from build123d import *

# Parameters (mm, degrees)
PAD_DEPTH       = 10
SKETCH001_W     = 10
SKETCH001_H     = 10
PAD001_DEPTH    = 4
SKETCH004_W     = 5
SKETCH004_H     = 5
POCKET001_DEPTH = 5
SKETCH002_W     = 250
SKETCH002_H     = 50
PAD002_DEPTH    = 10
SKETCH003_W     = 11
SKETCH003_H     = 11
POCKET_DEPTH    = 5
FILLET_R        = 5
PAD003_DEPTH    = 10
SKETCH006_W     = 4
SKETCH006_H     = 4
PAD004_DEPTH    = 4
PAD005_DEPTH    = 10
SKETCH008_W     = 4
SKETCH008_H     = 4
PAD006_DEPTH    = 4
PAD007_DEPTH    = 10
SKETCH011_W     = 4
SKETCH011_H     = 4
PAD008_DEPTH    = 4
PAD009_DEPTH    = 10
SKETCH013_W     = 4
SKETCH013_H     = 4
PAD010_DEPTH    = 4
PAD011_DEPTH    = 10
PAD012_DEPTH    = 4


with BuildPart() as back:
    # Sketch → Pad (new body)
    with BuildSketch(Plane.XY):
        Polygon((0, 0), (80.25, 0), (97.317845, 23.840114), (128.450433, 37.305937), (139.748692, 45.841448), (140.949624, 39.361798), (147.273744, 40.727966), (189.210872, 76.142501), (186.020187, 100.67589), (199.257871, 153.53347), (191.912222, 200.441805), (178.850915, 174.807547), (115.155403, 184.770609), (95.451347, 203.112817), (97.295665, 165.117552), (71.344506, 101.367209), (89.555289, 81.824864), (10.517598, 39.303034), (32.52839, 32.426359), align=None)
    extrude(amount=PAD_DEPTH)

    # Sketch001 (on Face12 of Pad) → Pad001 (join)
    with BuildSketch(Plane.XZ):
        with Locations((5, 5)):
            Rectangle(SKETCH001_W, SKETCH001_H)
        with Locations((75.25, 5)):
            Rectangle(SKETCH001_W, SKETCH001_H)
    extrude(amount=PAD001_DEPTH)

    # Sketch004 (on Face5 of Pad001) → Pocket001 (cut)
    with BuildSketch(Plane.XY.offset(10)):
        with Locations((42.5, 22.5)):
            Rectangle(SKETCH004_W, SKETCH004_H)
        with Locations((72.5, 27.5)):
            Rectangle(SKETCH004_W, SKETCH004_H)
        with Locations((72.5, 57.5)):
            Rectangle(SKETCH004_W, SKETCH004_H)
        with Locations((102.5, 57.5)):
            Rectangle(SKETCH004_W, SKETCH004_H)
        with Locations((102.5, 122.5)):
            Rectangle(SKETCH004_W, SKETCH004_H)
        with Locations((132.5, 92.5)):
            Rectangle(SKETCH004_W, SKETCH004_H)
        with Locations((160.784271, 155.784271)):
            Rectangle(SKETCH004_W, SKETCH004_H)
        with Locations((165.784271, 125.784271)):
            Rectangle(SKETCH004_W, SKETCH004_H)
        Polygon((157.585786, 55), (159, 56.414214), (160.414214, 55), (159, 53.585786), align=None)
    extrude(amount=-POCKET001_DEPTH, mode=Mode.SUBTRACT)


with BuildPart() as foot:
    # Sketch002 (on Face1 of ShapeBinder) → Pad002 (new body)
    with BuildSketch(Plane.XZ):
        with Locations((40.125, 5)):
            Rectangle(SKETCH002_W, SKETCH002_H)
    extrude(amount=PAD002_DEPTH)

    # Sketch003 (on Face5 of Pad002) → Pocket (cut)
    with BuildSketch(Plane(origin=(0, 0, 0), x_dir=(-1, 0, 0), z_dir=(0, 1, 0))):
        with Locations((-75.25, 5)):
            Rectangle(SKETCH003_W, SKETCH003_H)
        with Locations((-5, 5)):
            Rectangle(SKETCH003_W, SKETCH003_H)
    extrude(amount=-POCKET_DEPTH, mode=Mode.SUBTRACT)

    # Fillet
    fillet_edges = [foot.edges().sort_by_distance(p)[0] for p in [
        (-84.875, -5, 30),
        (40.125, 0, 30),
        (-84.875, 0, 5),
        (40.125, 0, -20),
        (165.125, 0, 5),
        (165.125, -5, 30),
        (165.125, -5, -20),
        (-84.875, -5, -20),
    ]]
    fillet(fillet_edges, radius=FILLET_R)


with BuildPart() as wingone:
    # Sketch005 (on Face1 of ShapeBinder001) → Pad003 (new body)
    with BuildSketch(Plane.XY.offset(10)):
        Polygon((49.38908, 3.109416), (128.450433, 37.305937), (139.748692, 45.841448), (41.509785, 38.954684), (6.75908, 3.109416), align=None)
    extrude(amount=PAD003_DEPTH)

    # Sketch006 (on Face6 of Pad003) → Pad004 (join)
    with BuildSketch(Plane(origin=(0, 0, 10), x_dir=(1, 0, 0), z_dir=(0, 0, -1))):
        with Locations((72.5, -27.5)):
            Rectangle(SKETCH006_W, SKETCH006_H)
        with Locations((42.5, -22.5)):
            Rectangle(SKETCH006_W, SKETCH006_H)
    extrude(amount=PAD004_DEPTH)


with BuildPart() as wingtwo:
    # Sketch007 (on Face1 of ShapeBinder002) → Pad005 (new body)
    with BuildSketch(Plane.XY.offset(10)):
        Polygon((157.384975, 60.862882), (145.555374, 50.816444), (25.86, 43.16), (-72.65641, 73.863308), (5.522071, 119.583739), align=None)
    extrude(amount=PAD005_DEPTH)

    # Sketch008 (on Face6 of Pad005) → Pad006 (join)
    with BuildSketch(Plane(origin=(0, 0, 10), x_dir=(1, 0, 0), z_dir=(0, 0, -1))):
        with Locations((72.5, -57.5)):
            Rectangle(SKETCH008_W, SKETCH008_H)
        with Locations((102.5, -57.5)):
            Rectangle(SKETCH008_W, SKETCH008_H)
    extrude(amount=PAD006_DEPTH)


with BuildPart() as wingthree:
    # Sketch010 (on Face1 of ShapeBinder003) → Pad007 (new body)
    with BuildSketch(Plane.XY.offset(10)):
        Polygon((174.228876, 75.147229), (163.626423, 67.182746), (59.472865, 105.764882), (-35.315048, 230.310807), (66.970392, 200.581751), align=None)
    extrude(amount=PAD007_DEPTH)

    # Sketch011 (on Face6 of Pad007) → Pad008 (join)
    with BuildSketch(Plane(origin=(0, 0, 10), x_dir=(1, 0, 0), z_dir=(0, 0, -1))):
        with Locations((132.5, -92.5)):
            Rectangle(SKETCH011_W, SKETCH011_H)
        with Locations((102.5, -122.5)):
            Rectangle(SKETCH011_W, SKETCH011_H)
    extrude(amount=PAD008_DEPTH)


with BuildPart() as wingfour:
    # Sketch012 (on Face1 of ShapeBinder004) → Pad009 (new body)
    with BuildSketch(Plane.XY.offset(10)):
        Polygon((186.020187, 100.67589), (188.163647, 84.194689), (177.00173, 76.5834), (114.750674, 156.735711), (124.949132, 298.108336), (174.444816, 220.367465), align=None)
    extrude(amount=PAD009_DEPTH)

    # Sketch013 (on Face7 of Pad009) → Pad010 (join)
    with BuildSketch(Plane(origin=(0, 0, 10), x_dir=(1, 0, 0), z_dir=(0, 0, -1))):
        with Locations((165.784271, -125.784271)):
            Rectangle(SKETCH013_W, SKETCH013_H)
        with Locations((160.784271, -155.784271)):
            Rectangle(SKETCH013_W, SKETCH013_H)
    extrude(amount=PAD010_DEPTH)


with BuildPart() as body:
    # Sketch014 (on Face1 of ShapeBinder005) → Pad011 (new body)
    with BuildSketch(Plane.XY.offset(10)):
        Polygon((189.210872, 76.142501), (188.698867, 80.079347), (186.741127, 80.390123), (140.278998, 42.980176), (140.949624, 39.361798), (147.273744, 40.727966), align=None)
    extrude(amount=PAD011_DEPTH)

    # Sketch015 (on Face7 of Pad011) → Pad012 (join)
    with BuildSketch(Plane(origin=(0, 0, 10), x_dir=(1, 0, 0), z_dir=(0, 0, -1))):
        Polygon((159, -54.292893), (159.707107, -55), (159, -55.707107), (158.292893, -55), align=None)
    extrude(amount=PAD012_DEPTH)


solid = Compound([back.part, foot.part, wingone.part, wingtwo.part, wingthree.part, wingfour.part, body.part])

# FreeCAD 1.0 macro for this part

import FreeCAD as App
import Part
import Sketcher
from FreeCAD import Vector
Q = App.Units.Quantity


def edges_at(feature, points):
    """Names of the edges that pass closest to the given points."""
    edges = feature.Shape.Edges
    near = lambda p: min(range(len(edges)), key=lambda i: edges[i].distToShape(Part.Vertex(*p))[0])
    return sorted({f"Edge{near(p) + 1}" for p in points})


def add_polygon(sketch, points):
    """Adds a closed chain of lines whose ends are joined by coincident constraints."""
    first, n = sketch.GeometryCount, len(points)
    for a, b in zip(points, points[1:] + points[:1]):
        sketch.addGeometry(Part.LineSegment(App.Vector(*a, 0), App.Vector(*b, 0)), False)
    for i in range(n):
        sketch.addConstraint(Sketcher.Constraint("Coincident", first + i, 2, first + (i + 1) % n, 1))

doc = App.newDocument("Part")
params = doc.addObject("Spreadsheet::Sheet", "Params")
for row, (alias, value) in enumerate([
    ("sketch1_width", "80.25 mm"),
    ("sketch1_length", "29.319999 mm"),
    ("sketch1_length2", "33.92 mm"),
    ("sketch1_length3", "14.16 mm"),
    ("sketch1_length4", "6.59 mm"),
    ("pad1_length", "10 mm"),
    ("sketch2_width", "10 mm"),
    ("pad2_length", "4 mm"),
    ("sketch3_width", "5 mm"),
    ("sketch3_length", "2.000001 mm"),
    ("pocket1_length", "5 mm"),
    ("sketch4_width", "250 mm"),
    ("sketch4_height", "50 mm"),
    ("pad3_length", "10 mm"),
    ("sketch5_width", "11 mm"),
    ("pocket2_length", "5 mm"),
    ("fillet_radius", "5 mm"),
    ("sketch6_width", "42.63 mm"),
    ("sketch6_length", "86.14 mm"),
    ("sketch6_length2", "14.16 mm"),
    ("sketch6_length3", "98.48 mm"),
    ("pad4_length", "10 mm"),
    ("sketch7_width", "4 mm"),
    ("pad5_length", "4 mm"),
    ("sketch8_length", "15.519999 mm"),
    ("sketch8_length2", "103.19 mm"),
    ("sketch8_length3", "119.94 mm"),
    ("pad6_length", "10 mm"),
    ("sketch9_width", "4 mm"),
    ("pad7_length", "4 mm"),
    ("sketch10_length", "165.04 mm"),
    ("sketch10_length2", "111.07 mm"),
    ("pad8_length", "10 mm"),
    ("sketch11_width", "4 mm"),
    ("pad9_length", "4 mm"),
    ("sketch12_length", "16.62 mm"),
    ("sketch12_length2", "120.249999 mm"),
    ("sketch12_length3", "92.160001 mm"),
    ("sketch12_length4", "141.74 mm"),
    ("sketch12_length5", "13.51 mm"),
    ("pad10_length", "10 mm"),
    ("sketch13_width", "4 mm"),
    ("pad11_length", "4 mm"),
    ("sketch14_length", "3.970001 mm"),
    ("sketch14_length2", "3.68 mm"),
    ("sketch14_length3", "6.470001 mm"),
    ("sketch14_length4", "54.889999 mm"),
    ("pad12_length", "10 mm"),
    ("sketch15_length", "1 mm"),
    ("pad13_length", "4 mm"),
], start=1):
    params.set(f"A{row}", alias)
    params.set(f"B{row}", "=" + value)
    params.setAlias(f"B{row}", alias)

body = doc.addObject("PartDesign::Body", "Body")

# Sketch on XY plane
sketch1 = doc.addObject("Sketcher::SketchObject", "Sketch")
body.addObject(sketch1)
sketch1.AttachmentSupport = (doc.XY_Plane, [""])
sketch1.MapMode = "FlatFace"
add_polygon(sketch1, [(0, 0), (80.25, 0), (97.317845, 23.840114), (128.450433, 37.305937), (139.748692, 45.841448), (140.949624, 39.361798), (147.273744, 40.727966), (189.210872, 76.142501), (186.020187, 100.67589), (199.257871, 153.53347), (191.912222, 200.441805), (178.850915, 174.807547), (115.155403, 184.770609), (95.451347, 203.112817), (97.295665, 165.117552), (71.344506, 101.367209), (89.555289, 81.824864), (10.517598, 39.303034), (32.52839, 32.426359)])  # lines 0-18
sketch1.addConstraint([
    Sketcher.Constraint("Horizontal", 0),
    Sketcher.Constraint("Coincident", 18, 2, -1, 1),
    Sketcher.Constraint("Angle", 10, Q("-117 deg")),
    Sketcher.Constraint("Angle", 1, Q("54.4 deg")),
    Sketcher.Constraint("Angle", 4, Q("-79.500001 deg")),
    Sketcher.Constraint("Angle", 9, Q("98.9 deg")),
    Sketcher.Constraint("DistanceX", 0, 1, 0, 2, Q("80.25 mm")),
    Sketcher.Constraint("Angle", 2, Q("23.39 deg")),
    Sketcher.Constraint("Angle", 3, Q("37.070002 deg")),
    Sketcher.Constraint("Angle", 5, Q("12.190002 deg")),
    Sketcher.Constraint("Angle", 6, Q("40.18 deg")),
    Sketcher.Constraint("Angle", 7, Q("97.41 deg")),
    Sketcher.Constraint("Angle", 8, Q("75.939999 deg")),
    Sketcher.Constraint("Angle", 11, Q("171.11 deg")),
    Sketcher.Constraint("Angle", 12, Q("137.05 deg")),
    Sketcher.Constraint("Angle", 14, Q("-112.15 deg")),
    Sketcher.Constraint("Angle", 15, Q("-47.019999 deg")),
    Sketcher.Constraint("Angle", 16, Q("-151.72 deg")),
    Sketcher.Constraint("Angle", 17, Q("-17.349999 deg")),
    Sketcher.Constraint("Angle", 18, Q("-135.09 deg")),
    Sketcher.Constraint("Distance", 1, Q("29.319999 mm")),
    Sketcher.Constraint("Distance", 2, Q("33.92 mm")),
    Sketcher.Constraint("Distance", 3, Q("14.16 mm")),
    Sketcher.Constraint("Distance", 4, Q("6.59 mm")),
    Sketcher.Constraint("Distance", 5, Q("6.470001 mm")),
    Sketcher.Constraint("Distance", 6, Q("54.889999 mm")),
    Sketcher.Constraint("Distance", 7, Q("24.740001 mm")),
    Sketcher.Constraint("Distance", 8, Q("54.489999 mm")),
    Sketcher.Constraint("Distance", 9, Q("47.480001 mm")),
    Sketcher.Constraint("Distance", 10, Q("28.77 mm")),
    Sketcher.Constraint("Distance", 11, Q("64.47 mm")),
    Sketcher.Constraint("Distance", 12, Q("26.92 mm")),
    Sketcher.Constraint("Distance", 13, Q("38.040001 mm")),
    Sketcher.Constraint("Distance", 14, Q("68.83 mm")),
    Sketcher.Constraint("Distance", 16, Q("89.750001 mm")),
    Sketcher.Constraint("Distance", 17, Q("23.060001 mm")),
    Sketcher.Constraint("Distance", 18, Q("45.93 mm")),
])
sketch1.setExpression("Constraints[25]", "Params.sketch1_width")
sketch1.setExpression("Constraints[39]", "Params.sketch1_length")
sketch1.setExpression("Constraints[40]", "Params.sketch1_length2")
sketch1.setExpression("Constraints[41]", "Params.sketch1_length3")
sketch1.setExpression("Constraints[42]", "Params.sketch1_length4")
pad1 = doc.addObject("PartDesign::Pad", "Pad")
body.addObject(pad1)
pad1.Profile = sketch1
pad1.setExpression("Length", "Params.pad1_length")

# Sketch on XZ plane
sketch2 = doc.addObject("Sketcher::SketchObject", "Sketch001")
body.addObject(sketch2)
sketch2.AttachmentSupport = (doc.XZ_Plane, [""])
sketch2.MapMode = "FlatFace"
add_polygon(sketch2, [(0, 10), (0, 0), (10, 0), (10, 10)])  # lines 0-3
add_polygon(sketch2, [(70.25, 10), (70.25, 0), (80.25, 0), (80.25, 10)])  # lines 4-7
sketch2.addConstraint([
    Sketcher.Constraint("Vertical", 0),
    Sketcher.Constraint("Horizontal", 1),
    Sketcher.Constraint("Vertical", 2),
    Sketcher.Constraint("Horizontal", 3),
    Sketcher.Constraint("Vertical", 4),
    Sketcher.Constraint("Horizontal", 5),
    Sketcher.Constraint("Vertical", 6),
    Sketcher.Constraint("Horizontal", 7),
    Sketcher.Constraint("Coincident", 0, 2, -1, 1),
    Sketcher.Constraint("PointOnObject", 4, 2, -1),
    Sketcher.Constraint("Horizontal", 3, 2, 6, 2),
    Sketcher.Constraint("Equal", 3, 5),
    Sketcher.Constraint("Equal", 7, 0),
    Sketcher.Constraint("DistanceX", 1, 1, 1, 2, Q("10 mm")),
    Sketcher.Constraint("DistanceX", -1, 1, 4, 2, Q("70.25 mm")),
])
sketch2.setExpression("Constraints[21]", "Params.sketch2_width")
pad2 = doc.addObject("PartDesign::Pad", "Pad001")
body.addObject(pad2)
pad2.Profile = sketch2
pad2.setExpression("Length", "Params.pad2_length")

# Sketch on XY plane
sketch3 = doc.addObject("Sketcher::SketchObject", "Sketch002")
body.addObject(sketch3)
sketch3.AttachmentSupport = (doc.XY_Plane, [""])
sketch3.MapMode = "FlatFace"
sketch3.AttachmentOffset = App.Placement(Vector(0, 0, 10), App.Rotation())
add_polygon(sketch3, [(40, 25), (40, 20), (45, 20), (45, 25)])  # lines 0-3
add_polygon(sketch3, [(70, 30), (70, 25), (75, 25), (75, 30)])  # lines 4-7
add_polygon(sketch3, [(70, 60), (70, 55), (75, 55), (75, 60)])  # lines 8-11
add_polygon(sketch3, [(100, 60), (100, 55), (105, 55), (105, 60)])  # lines 12-15
add_polygon(sketch3, [(100, 125), (100, 120), (105, 120), (105, 125)])  # lines 16-19
add_polygon(sketch3, [(130, 95), (130, 90), (135, 90), (135, 95)])  # lines 20-23
add_polygon(sketch3, [(158.284271, 158.284271), (158.284271, 153.284271), (163.284271, 153.284271), (163.284271, 158.284271)])  # lines 24-27
add_polygon(sketch3, [(163.284271, 128.284271), (163.284271, 123.284271), (168.284271, 123.284271), (168.284271, 128.284271)])  # lines 28-31
add_polygon(sketch3, [(159, 56.414214), (157.585786, 55), (159, 53.585786), (160.414214, 55)])  # lines 32-35
sketch3.addConstraint([
    Sketcher.Constraint("Vertical", 0),
    Sketcher.Constraint("Horizontal", 1),
    Sketcher.Constraint("Vertical", 2),
    Sketcher.Constraint("Horizontal", 3),
    Sketcher.Constraint("Vertical", 4),
    Sketcher.Constraint("Horizontal", 5),
    Sketcher.Constraint("Vertical", 6),
    Sketcher.Constraint("Horizontal", 7),
    Sketcher.Constraint("Vertical", 8),
    Sketcher.Constraint("Horizontal", 9),
    Sketcher.Constraint("Vertical", 10),
    Sketcher.Constraint("Horizontal", 11),
    Sketcher.Constraint("Vertical", 12),
    Sketcher.Constraint("Horizontal", 13),
    Sketcher.Constraint("Vertical", 14),
    Sketcher.Constraint("Horizontal", 15),
    Sketcher.Constraint("Vertical", 16),
    Sketcher.Constraint("Horizontal", 17),
    Sketcher.Constraint("Vertical", 18),
    Sketcher.Constraint("Horizontal", 19),
    Sketcher.Constraint("Vertical", 20),
    Sketcher.Constraint("Horizontal", 21),
    Sketcher.Constraint("Vertical", 22),
    Sketcher.Constraint("Horizontal", 23),
    Sketcher.Constraint("Vertical", 24),
    Sketcher.Constraint("Horizontal", 25),
    Sketcher.Constraint("Vertical", 26),
    Sketcher.Constraint("Horizontal", 27),
    Sketcher.Constraint("Vertical", 28),
    Sketcher.Constraint("Horizontal", 29),
    Sketcher.Constraint("Vertical", 30),
    Sketcher.Constraint("Horizontal", 31),
    Sketcher.Constraint("Perpendicular", 32, 33),
    Sketcher.Constraint("Perpendicular", 33, 34),
    Sketcher.Constraint("Perpendicular", 34, 35),
    Sketcher.Constraint("Horizontal", 3, 2, 4, 2),
    Sketcher.Constraint("Horizontal", 9, 2, 12, 2),
    Sketcher.Constraint("Horizontal", 11, 2, 14, 2),
    Sketcher.Constraint("Horizontal", 13, 2, 32, 2),
    Sketcher.Constraint("Horizontal", 32, 2, 34, 2),
    Sketcher.Constraint("Vertical", 7, 2, 8, 2),
    Sketcher.Constraint("Vertical", 6, 2, 9, 2),
    Sketcher.Constraint("Vertical", 15, 2, 16, 2),
    Sketcher.Constraint("Vertical", 14, 2, 17, 2),
    Sketcher.Constraint("Vertical", 26, 2, 28, 2),
    Sketcher.Constraint("Vertical", 33, 2, 35, 2),
    Sketcher.Constraint("Equal", 3, 5),
    Sketcher.Constraint("Equal", 11, 13),
    Sketcher.Constraint("Equal", 19, 21),
    Sketcher.Constraint("Equal", 23, 25),
    Sketcher.Constraint("Equal", 27, 29),
    Sketcher.Constraint("Equal", 31, 0),
    Sketcher.Constraint("Equal", 2, 4),
    Sketcher.Constraint("Equal", 6, 8),
    Sketcher.Constraint("Equal", 14, 16),
    Sketcher.Constraint("Equal", 18, 20),
    Sketcher.Constraint("Equal", 22, 24),
    Sketcher.Constraint("Equal", 26, 28),
    Sketcher.Constraint("DistanceX", 1, 1, 1, 2, Q("5 mm")),
    Sketcher.Constraint("Distance", 32, Q("2.000001 mm")),
    Sketcher.Constraint("DistanceX", -1, 1, 0, 2, Q("40 mm")),
    Sketcher.Constraint("DistanceY", -1, 1, 0, 2, Q("20 mm")),
    Sketcher.Constraint("DistanceX", -1, 1, 4, 2, Q("70 mm")),
    Sketcher.Constraint("DistanceY", -1, 1, 8, 2, Q("55 mm")),
    Sketcher.Constraint("DistanceX", -1, 1, 12, 2, Q("100 mm")),
    Sketcher.Constraint("DistanceY", -1, 1, 16, 2, Q("120 mm")),
    Sketcher.Constraint("DistanceX", -1, 1, 20, 2, Q("130 mm")),
    Sketcher.Constraint("DistanceY", -1, 1, 20, 2, Q("90 mm")),
    Sketcher.Constraint("DistanceX", -1, 1, 33, 2, Q("159 mm")),
    Sketcher.Constraint("DistanceY", 28, 2, 25, 2, Q("30 mm")),
    Sketcher.Constraint("DistanceX", -1, 1, 24, 2, Q("158.284271 mm")),
    Sketcher.Constraint("DistanceY", -1, 1, 24, 2, Q("153.284271 mm")),
])
sketch3.setExpression("Constraints[94]", "Params.sketch3_width")
sketch3.setExpression("Constraints[95]", "Params.sketch3_length")
pocket1 = doc.addObject("PartDesign::Pocket", "Pocket")
body.addObject(pocket1)
pocket1.Profile = sketch3
pocket1.setExpression("Length", "Params.pocket1_length")
body2 = doc.addObject("PartDesign::Body", "Body001")

# Sketch on XZ plane
sketch4 = doc.addObject("Sketcher::SketchObject", "Sketch003")
body2.addObject(sketch4)
sketch4.AttachmentSupport = (doc.getObject("XZ_Plane001"), [""])
sketch4.MapMode = "FlatFace"
add_polygon(sketch4, [(-84.875, 30), (-84.875, -20), (165.125, -20), (165.125, 30)])  # lines 0-3
sketch4.addConstraint([
    Sketcher.Constraint("Vertical", 0),
    Sketcher.Constraint("Horizontal", 1),
    Sketcher.Constraint("Vertical", 2),
    Sketcher.Constraint("Horizontal", 3),
    Sketcher.Constraint("DistanceX", 1, 1, 1, 2, Q("250 mm")),
    Sketcher.Constraint("DistanceY", 0, 2, 0, 1, Q("50 mm")),
    Sketcher.Constraint("DistanceY", 0, 2, -1, 1, Q("20 mm")),
    Sketcher.Constraint("DistanceX", 0, 2, -1, 1, Q("84.875 mm")),
])
sketch4.setExpression("Constraints[8]", "Params.sketch4_width")
sketch4.setExpression("Constraints[9]", "Params.sketch4_height")
pad3 = doc.addObject("PartDesign::Pad", "Pad002")
body2.addObject(pad3)
pad3.Profile = sketch4
pad3.setExpression("Length", "Params.pad3_length")

# Sketch on XZ plane
sketch5 = doc.addObject("Sketcher::SketchObject", "Sketch004")
body2.addObject(sketch5)
sketch5.AttachmentSupport = (doc.getObject("XZ_Plane001"), [""])
sketch5.MapMode = "FlatFace"
add_polygon(sketch5, [(80.75, 10.5), (80.75, -0.5), (69.75, -0.5), (69.75, 10.5)])  # lines 0-3
add_polygon(sketch5, [(10.5, 10.5), (10.5, -0.5), (-0.5, -0.5), (-0.5, 10.5)])  # lines 4-7
sketch5.addConstraint([
    Sketcher.Constraint("Vertical", 0),
    Sketcher.Constraint("Horizontal", 1),
    Sketcher.Constraint("Vertical", 2),
    Sketcher.Constraint("Horizontal", 3),
    Sketcher.Constraint("Vertical", 4),
    Sketcher.Constraint("Horizontal", 5),
    Sketcher.Constraint("Vertical", 6),
    Sketcher.Constraint("Horizontal", 7),
    Sketcher.Constraint("Horizontal", 1, 2, 4, 2),
    Sketcher.Constraint("Horizontal", 3, 2, 6, 2),
    Sketcher.Constraint("Equal", 3, 5),
    Sketcher.Constraint("Equal", 7, 0),
    Sketcher.Constraint("DistanceX", 1, 2, 1, 1, Q("11 mm")),
    Sketcher.Constraint("DistanceY", 0, 2, -1, 1, Q("0.5 mm")),
    Sketcher.Constraint("DistanceX", -1, 1, 4, 2, Q("10.5 mm")),
    Sketcher.Constraint("DistanceX", -1, 1, 0, 2, Q("80.75 mm")),
])
sketch5.setExpression("Constraints[20]", "Params.sketch5_width")
pocket2 = doc.addObject("PartDesign::Pocket", "Pocket001")
body2.addObject(pocket2)
pocket2.Profile = sketch5
pocket2.setExpression("Length", "Params.pocket2_length")
pocket2.Reversed = True
doc.recompute()

fillet = doc.addObject("PartDesign::Fillet", "Fillet")
body2.addObject(fillet)
fillet.Base = (pocket2, edges_at(pocket2, [
    (-84.875, -5, 30),
    (40.125, 0, 30),
    (-84.875, 0, 5),
    (40.125, 0, -20),
    (165.125, 0, 5),
    (165.125, -5, 30),
    (165.125, -5, -20),
    (-84.875, -5, -20),
]))
fillet.setExpression("Radius", "Params.fillet_radius")
body3 = doc.addObject("PartDesign::Body", "Body002")

# Sketch on XY plane
sketch6 = doc.addObject("Sketcher::SketchObject", "Sketch005")
body3.addObject(sketch6)
sketch6.AttachmentSupport = (doc.getObject("XY_Plane002"), [""])
sketch6.MapMode = "FlatFace"
sketch6.AttachmentOffset = App.Placement(Vector(0, 0, 10), App.Rotation())
add_polygon(sketch6, [(49.38908, 3.109416), (128.450433, 37.305937), (139.748692, 45.841448), (41.509785, 38.954684), (6.75908, 3.109416)])  # lines 0-4
sketch6.addConstraint([
    Sketcher.Constraint("Horizontal", 4),
    Sketcher.Constraint("DistanceX", 4, 1, 4, 2, Q("42.63 mm")),
    Sketcher.Constraint("Angle", 0, Q("23.39 deg")),
    Sketcher.Constraint("Angle", 1, Q("37.070002 deg")),
    Sketcher.Constraint("Angle", 2, Q("-175.99 deg")),
    Sketcher.Constraint("Distance", 0, Q("86.14 mm")),
    Sketcher.Constraint("Distance", 1, Q("14.16 mm")),
    Sketcher.Constraint("Distance", 2, Q("98.48 mm")),
    Sketcher.Constraint("DistanceX", -1, 1, 1, 2, Q("139.748692 mm")),
    Sketcher.Constraint("DistanceY", -1, 1, 0, 2, Q("37.305937 mm")),
])
sketch6.setExpression("Constraints[6]", "Params.sketch6_width")
sketch6.setExpression("Constraints[10]", "Params.sketch6_length")
sketch6.setExpression("Constraints[11]", "Params.sketch6_length2")
sketch6.setExpression("Constraints[12]", "Params.sketch6_length3")
pad4 = doc.addObject("PartDesign::Pad", "Pad003")
body3.addObject(pad4)
pad4.Profile = sketch6
pad4.setExpression("Length", "Params.pad4_length")

# Sketch on XY plane
sketch7 = doc.addObject("Sketcher::SketchObject", "Sketch006")
body3.addObject(sketch7)
sketch7.AttachmentSupport = (doc.getObject("XY_Plane002"), [""])
sketch7.MapMode = "FlatFace"
sketch7.AttachmentOffset = App.Placement(Vector(0, 0, 10), App.Rotation())
add_polygon(sketch7, [(70.5, 25.5), (70.5, 29.5), (74.5, 29.5), (74.5, 25.5)])  # lines 0-3
add_polygon(sketch7, [(40.5, 20.5), (40.5, 24.5), (44.5, 24.5), (44.5, 20.5)])  # lines 4-7
sketch7.addConstraint([
    Sketcher.Constraint("Vertical", 0),
    Sketcher.Constraint("Horizontal", 1),
    Sketcher.Constraint("Vertical", 2),
    Sketcher.Constraint("Horizontal", 3),
    Sketcher.Constraint("Vertical", 4),
    Sketcher.Constraint("Horizontal", 5),
    Sketcher.Constraint("Vertical", 6),
    Sketcher.Constraint("Horizontal", 7),
    Sketcher.Constraint("Equal", 3, 5),
    Sketcher.Constraint("Equal", 7, 0),
    Sketcher.Constraint("Equal", 2, 4),
    Sketcher.Constraint("DistanceX", 1, 1, 1, 2, Q("4 mm")),
    Sketcher.Constraint("DistanceX", 4, 2, 3, 2, Q("30 mm")),
    Sketcher.Constraint("DistanceY", 4, 2, 3, 2, Q("1 mm")),
    Sketcher.Constraint("DistanceX", -1, 1, 0, 2, Q("70.5 mm")),
    Sketcher.Constraint("DistanceY", -1, 1, 0, 2, Q("29.5 mm")),
])
sketch7.setExpression("Constraints[19]", "Params.sketch7_width")
pad5 = doc.addObject("PartDesign::Pad", "Pad004")
body3.addObject(pad5)
pad5.Profile = sketch7
pad5.setExpression("Length", "Params.pad5_length")
pad5.Reversed = True
body4 = doc.addObject("PartDesign::Body", "Body003")

# Sketch on XY plane
sketch8 = doc.addObject("Sketcher::SketchObject", "Sketch007")
body4.addObject(sketch8)
sketch8.AttachmentSupport = (doc.getObject("XY_Plane003"), [""])
sketch8.MapMode = "FlatFace"
sketch8.AttachmentOffset = App.Placement(Vector(0, 0, 10), App.Rotation())
add_polygon(sketch8, [(145.555374, 50.816444), (157.384975, 60.862882), (5.522071, 119.583739), (-72.65641, 73.863308), (25.86, 43.16)])  # lines 0-4
sketch8.addConstraint([
    Sketcher.Constraint("Angle", 0, Q("40.34 deg")),
    Sketcher.Constraint("Angle", 1, Q("158.86 deg")),
    Sketcher.Constraint("Angle", 2, Q("-149.68 deg")),
    Sketcher.Constraint("Angle", 3, Q("-17.31 deg")),
    Sketcher.Constraint("Angle", 4, Q("3.66 deg")),
    Sketcher.Constraint("Distance", 0, Q("15.519999 mm")),
    Sketcher.Constraint("Distance", 3, Q("103.19 mm")),
    Sketcher.Constraint("Distance", 4, Q("119.94 mm")),
    Sketcher.Constraint("DistanceX", -1, 1, 3, 2, Q("25.86 mm")),
    Sketcher.Constraint("DistanceY", -1, 1, 3, 2, Q("43.16 mm")),
])
sketch8.setExpression("Constraints[10]", "Params.sketch8_length")
sketch8.setExpression("Constraints[11]", "Params.sketch8_length2")
sketch8.setExpression("Constraints[12]", "Params.sketch8_length3")
pad6 = doc.addObject("PartDesign::Pad", "Pad005")
body4.addObject(pad6)
pad6.Profile = sketch8
pad6.setExpression("Length", "Params.pad6_length")

# Sketch on XY plane
sketch9 = doc.addObject("Sketcher::SketchObject", "Sketch008")
body4.addObject(sketch9)
sketch9.AttachmentSupport = (doc.getObject("XY_Plane003"), [""])
sketch9.MapMode = "FlatFace"
sketch9.AttachmentOffset = App.Placement(Vector(0, 0, 10), App.Rotation())
add_polygon(sketch9, [(70.5, 55.5), (70.5, 59.5), (74.5, 59.5), (74.5, 55.5)])  # lines 0-3
add_polygon(sketch9, [(100.5, 55.5), (100.5, 59.5), (104.5, 59.5), (104.5, 55.5)])  # lines 4-7
sketch9.addConstraint([
    Sketcher.Constraint("Vertical", 0),
    Sketcher.Constraint("Horizontal", 1),
    Sketcher.Constraint("Vertical", 2),
    Sketcher.Constraint("Horizontal", 3),
    Sketcher.Constraint("Vertical", 4),
    Sketcher.Constraint("Horizontal", 5),
    Sketcher.Constraint("Vertical", 6),
    Sketcher.Constraint("Horizontal", 7),
    Sketcher.Constraint("Horizontal", 1, 2, 4, 2),
    Sketcher.Constraint("Horizontal", 3, 2, 6, 2),
    Sketcher.Constraint("Equal", 3, 5),
    Sketcher.Constraint("Equal", 7, 0),
    Sketcher.Constraint("DistanceX", 1, 1, 1, 2, Q("4 mm")),
    Sketcher.Constraint("DistanceX", 1, 2, 4, 2, Q("26 mm")),
    Sketcher.Constraint("DistanceX", -1, 1, 0, 2, Q("70.5 mm")),
    Sketcher.Constraint("DistanceY", -1, 1, 0, 2, Q("59.5 mm")),
])
sketch9.setExpression("Constraints[20]", "Params.sketch9_width")
pad7 = doc.addObject("PartDesign::Pad", "Pad006")
body4.addObject(pad7)
pad7.Profile = sketch9
pad7.setExpression("Length", "Params.pad7_length")
pad7.Reversed = True
body5 = doc.addObject("PartDesign::Body", "Body004")

# Sketch on XY plane
sketch10 = doc.addObject("Sketcher::SketchObject", "Sketch009")
body5.addObject(sketch10)
sketch10.AttachmentSupport = (doc.getObject("XY_Plane004"), [""])
sketch10.MapMode = "FlatFace"
sketch10.AttachmentOffset = App.Placement(Vector(0, 0, 10), App.Rotation())
add_polygon(sketch10, [(163.626423, 67.182746), (174.228876, 75.147229), (66.970392, 200.581751), (-35.315048, 230.310807), (59.472865, 105.764882)])  # lines 0-4
sketch10.addConstraint([
    Sketcher.Constraint("Distance", 1, Q("165.04 mm")),
    Sketcher.Constraint("Distance", 4, Q("111.07 mm")),
    Sketcher.Constraint("DistanceY", -1, 1, 0, 2, Q("75.147229 mm")),
    Sketcher.Constraint("DistanceY", -1, 1, 1, 2, Q("200.581751 mm")),
    Sketcher.Constraint("DistanceY", -1, 1, 3, 2, Q("105.764882 mm")),
    Sketcher.Constraint("DistanceX", 2, 2, 1, 2, Q("102.28544 mm")),
    Sketcher.Constraint("DistanceY", 0, 2, 2, 2, Q("155.163578 mm")),
    Sketcher.Constraint("DistanceX", 3, 2, 0, 2, Q("114.756011 mm")),
    Sketcher.Constraint("DistanceX", 1, 2, 4, 2, Q("96.656031 mm")),
    Sketcher.Constraint("DistanceX", -1, 1, 0, 2, Q("174.228876 mm")),
])
sketch10.setExpression("Constraints[5]", "Params.sketch10_length")
sketch10.setExpression("Constraints[6]", "Params.sketch10_length2")
pad8 = doc.addObject("PartDesign::Pad", "Pad007")
body5.addObject(pad8)
pad8.Profile = sketch10
pad8.setExpression("Length", "Params.pad8_length")

# Sketch on XY plane
sketch11 = doc.addObject("Sketcher::SketchObject", "Sketch010")
body5.addObject(sketch11)
sketch11.AttachmentSupport = (doc.getObject("XY_Plane004"), [""])
sketch11.MapMode = "FlatFace"
sketch11.AttachmentOffset = App.Placement(Vector(0, 0, 10), App.Rotation())
add_polygon(sketch11, [(130.5, 90.5), (130.5, 94.5), (134.5, 94.5), (134.5, 90.5)])  # lines 0-3
add_polygon(sketch11, [(100.5, 120.5), (100.5, 124.5), (104.5, 124.5), (104.5, 120.5)])  # lines 4-7
sketch11.addConstraint([
    Sketcher.Constraint("Vertical", 0),
    Sketcher.Constraint("Horizontal", 1),
    Sketcher.Constraint("Vertical", 2),
    Sketcher.Constraint("Horizontal", 3),
    Sketcher.Constraint("Vertical", 4),
    Sketcher.Constraint("Horizontal", 5),
    Sketcher.Constraint("Vertical", 6),
    Sketcher.Constraint("Horizontal", 7),
    Sketcher.Constraint("Equal", 3, 5),
    Sketcher.Constraint("Equal", 7, 0),
    Sketcher.Constraint("Equal", 2, 4),
    Sketcher.Constraint("DistanceX", 1, 1, 1, 2, Q("4 mm")),
    Sketcher.Constraint("DistanceX", 4, 2, 0, 2, Q("30 mm")),
    Sketcher.Constraint("DistanceY", 0, 2, 4, 2, Q("30 mm")),
    Sketcher.Constraint("DistanceX", -1, 1, 0, 2, Q("130.5 mm")),
    Sketcher.Constraint("DistanceY", -1, 1, 0, 2, Q("94.5 mm")),
])
sketch11.setExpression("Constraints[19]", "Params.sketch11_width")
pad9 = doc.addObject("PartDesign::Pad", "Pad008")
body5.addObject(pad9)
pad9.Profile = sketch11
pad9.setExpression("Length", "Params.pad9_length")
pad9.Reversed = True
body6 = doc.addObject("PartDesign::Body", "Body005")

# Sketch on XY plane
sketch12 = doc.addObject("Sketcher::SketchObject", "Sketch011")
body6.addObject(sketch12)
sketch12.AttachmentSupport = (doc.getObject("XY_Plane005"), [""])
sketch12.MapMode = "FlatFace"
sketch12.AttachmentOffset = App.Placement(Vector(0, 0, 10), App.Rotation())
add_polygon(sketch12, [(188.163647, 84.194689), (186.020187, 100.67589), (174.444816, 220.367465), (124.949132, 298.108336), (114.750674, 156.735711), (177.00173, 76.5834)])  # lines 0-5
sketch12.addConstraint([
    Sketcher.Constraint("Angle", 0, Q("97.410002 deg")),
    Sketcher.Constraint("Angle", 5, Q("34.289999 deg")),
    Sketcher.Constraint("Distance", 0, Q("16.62 mm")),
    Sketcher.Constraint("Distance", 1, Q("120.249999 mm")),
    Sketcher.Constraint("Distance", 2, Q("92.160001 mm")),
    Sketcher.Constraint("Distance", 3, Q("141.74 mm")),
    Sketcher.Constraint("Distance", 5, Q("13.51 mm")),
    Sketcher.Constraint("DistanceY", -1, 1, 4, 2, Q("76.5834 mm")),
    Sketcher.Constraint("DistanceX", 2, 2, 4, 2, Q("52.052598 mm")),
    Sketcher.Constraint("Distance", 4, Q("101.486881 mm")),
    Sketcher.Constraint("DistanceY", -1, 1, 3, 2, Q("156.735711 mm")),
    Sketcher.Constraint("DistanceX", -1, 1, 4, 2, Q("177.00173 mm")),
])
sketch12.setExpression("Constraints[8]", "Params.sketch12_length")
sketch12.setExpression("Constraints[9]", "Params.sketch12_length2")
sketch12.setExpression("Constraints[10]", "Params.sketch12_length3")
sketch12.setExpression("Constraints[11]", "Params.sketch12_length4")
sketch12.setExpression("Constraints[12]", "Params.sketch12_length5")
pad10 = doc.addObject("PartDesign::Pad", "Pad009")
body6.addObject(pad10)
pad10.Profile = sketch12
pad10.setExpression("Length", "Params.pad10_length")

# Sketch on XY plane
sketch13 = doc.addObject("Sketcher::SketchObject", "Sketch012")
body6.addObject(sketch13)
sketch13.AttachmentSupport = (doc.getObject("XY_Plane005"), [""])
sketch13.MapMode = "FlatFace"
sketch13.AttachmentOffset = App.Placement(Vector(0, 0, 10), App.Rotation())
add_polygon(sketch13, [(163.784271, 123.784271), (163.784271, 127.784271), (167.784271, 127.784271), (167.784271, 123.784271)])  # lines 0-3
add_polygon(sketch13, [(158.784271, 153.784271), (158.784271, 157.784271), (162.784271, 157.784271), (162.784271, 153.784271)])  # lines 4-7
sketch13.addConstraint([
    Sketcher.Constraint("Vertical", 0),
    Sketcher.Constraint("Horizontal", 1),
    Sketcher.Constraint("Vertical", 2),
    Sketcher.Constraint("Horizontal", 3),
    Sketcher.Constraint("Vertical", 4),
    Sketcher.Constraint("Horizontal", 5),
    Sketcher.Constraint("Vertical", 6),
    Sketcher.Constraint("Horizontal", 7),
    Sketcher.Constraint("Equal", 3, 5),
    Sketcher.Constraint("Equal", 7, 0),
    Sketcher.Constraint("Equal", 2, 4),
    Sketcher.Constraint("DistanceX", 1, 1, 1, 2, Q("4 mm")),
    Sketcher.Constraint("DistanceX", 4, 2, 0, 2, Q("5 mm")),
    Sketcher.Constraint("DistanceY", 0, 2, 4, 2, Q("30 mm")),
    Sketcher.Constraint("DistanceX", -1, 1, 0, 2, Q("163.784271 mm")),
    Sketcher.Constraint("DistanceY", -1, 1, 0, 2, Q("127.784271 mm")),
])
sketch13.setExpression("Constraints[19]", "Params.sketch13_width")
pad11 = doc.addObject("PartDesign::Pad", "Pad010")
body6.addObject(pad11)
pad11.Profile = sketch13
pad11.setExpression("Length", "Params.pad11_length")
pad11.Reversed = True
body7 = doc.addObject("PartDesign::Body", "Body006")

# Sketch on XY plane
sketch14 = doc.addObject("Sketcher::SketchObject", "Sketch013")
body7.addObject(sketch14)
sketch14.AttachmentSupport = (doc.getObject("XY_Plane006"), [""])
sketch14.MapMode = "FlatFace"
sketch14.AttachmentOffset = App.Placement(Vector(0, 0, 10), App.Rotation())
add_polygon(sketch14, [(189.210872, 76.142501), (188.698867, 80.079347), (186.741127, 80.390123), (140.278998, 42.980176), (140.949624, 39.361798), (147.273744, 40.727966)])  # lines 0-5
sketch14.addConstraint([
    Sketcher.Constraint("Angle", 3, Q("-79.500011 deg")),
    Sketcher.Constraint("Angle", 0, Q("97.409989 deg")),
    Sketcher.Constraint("Angle", 1, Q("170.980003 deg")),
    Sketcher.Constraint("Angle", 2, Q("-141.159999 deg")),
    Sketcher.Constraint("Angle", 4, Q("12.190002 deg")),
    Sketcher.Constraint("Angle", 5, Q("40.18 deg")),
    Sketcher.Constraint("Distance", 0, Q("3.970001 mm")),
    Sketcher.Constraint("Distance", 3, Q("3.68 mm")),
    Sketcher.Constraint("Distance", 4, Q("6.470001 mm")),
    Sketcher.Constraint("Distance", 5, Q("54.889999 mm")),
    Sketcher.Constraint("DistanceX", -1, 1, 2, 2, Q("140.278998 mm")),
    Sketcher.Constraint("DistanceY", -1, 1, 5, 2, Q("76.142501 mm")),
])
sketch14.setExpression("Constraints[12]", "Params.sketch14_length")
sketch14.setExpression("Constraints[13]", "Params.sketch14_length2")
sketch14.setExpression("Constraints[14]", "Params.sketch14_length3")
sketch14.setExpression("Constraints[15]", "Params.sketch14_length4")
pad12 = doc.addObject("PartDesign::Pad", "Pad011")
body7.addObject(pad12)
pad12.Profile = sketch14
pad12.setExpression("Length", "Params.pad12_length")

# Sketch on XY plane
sketch15 = doc.addObject("Sketcher::SketchObject", "Sketch014")
body7.addObject(sketch15)
sketch15.AttachmentSupport = (doc.getObject("XY_Plane006"), [""])
sketch15.MapMode = "FlatFace"
sketch15.AttachmentOffset = App.Placement(Vector(0, 0, 10), App.Rotation())
add_polygon(sketch15, [(159.707107, 55), (159, 54.292893), (158.292893, 55), (159, 55.707107)])  # lines 0-3
sketch15.addConstraint([
    Sketcher.Constraint("Perpendicular", 0, 1),
    Sketcher.Constraint("Perpendicular", 1, 2),
    Sketcher.Constraint("Perpendicular", 2, 3),
    Sketcher.Constraint("Horizontal", 1, 2, 3, 2),
    Sketcher.Constraint("Vertical", 0, 2, 2, 2),
    Sketcher.Constraint("Distance", 0, Q("1 mm")),
    Sketcher.Constraint("DistanceX", -1, 1, 0, 2, Q("159 mm")),
    Sketcher.Constraint("DistanceY", -1, 1, 1, 2, Q("55 mm")),
])
sketch15.setExpression("Constraints[9]", "Params.sketch15_length")
pad13 = doc.addObject("PartDesign::Pad", "Pad012")
body7.addObject(pad13)
pad13.Profile = sketch15
pad13.setExpression("Length", "Params.pad13_length")
pad13.Reversed = True

doc.recompute()
